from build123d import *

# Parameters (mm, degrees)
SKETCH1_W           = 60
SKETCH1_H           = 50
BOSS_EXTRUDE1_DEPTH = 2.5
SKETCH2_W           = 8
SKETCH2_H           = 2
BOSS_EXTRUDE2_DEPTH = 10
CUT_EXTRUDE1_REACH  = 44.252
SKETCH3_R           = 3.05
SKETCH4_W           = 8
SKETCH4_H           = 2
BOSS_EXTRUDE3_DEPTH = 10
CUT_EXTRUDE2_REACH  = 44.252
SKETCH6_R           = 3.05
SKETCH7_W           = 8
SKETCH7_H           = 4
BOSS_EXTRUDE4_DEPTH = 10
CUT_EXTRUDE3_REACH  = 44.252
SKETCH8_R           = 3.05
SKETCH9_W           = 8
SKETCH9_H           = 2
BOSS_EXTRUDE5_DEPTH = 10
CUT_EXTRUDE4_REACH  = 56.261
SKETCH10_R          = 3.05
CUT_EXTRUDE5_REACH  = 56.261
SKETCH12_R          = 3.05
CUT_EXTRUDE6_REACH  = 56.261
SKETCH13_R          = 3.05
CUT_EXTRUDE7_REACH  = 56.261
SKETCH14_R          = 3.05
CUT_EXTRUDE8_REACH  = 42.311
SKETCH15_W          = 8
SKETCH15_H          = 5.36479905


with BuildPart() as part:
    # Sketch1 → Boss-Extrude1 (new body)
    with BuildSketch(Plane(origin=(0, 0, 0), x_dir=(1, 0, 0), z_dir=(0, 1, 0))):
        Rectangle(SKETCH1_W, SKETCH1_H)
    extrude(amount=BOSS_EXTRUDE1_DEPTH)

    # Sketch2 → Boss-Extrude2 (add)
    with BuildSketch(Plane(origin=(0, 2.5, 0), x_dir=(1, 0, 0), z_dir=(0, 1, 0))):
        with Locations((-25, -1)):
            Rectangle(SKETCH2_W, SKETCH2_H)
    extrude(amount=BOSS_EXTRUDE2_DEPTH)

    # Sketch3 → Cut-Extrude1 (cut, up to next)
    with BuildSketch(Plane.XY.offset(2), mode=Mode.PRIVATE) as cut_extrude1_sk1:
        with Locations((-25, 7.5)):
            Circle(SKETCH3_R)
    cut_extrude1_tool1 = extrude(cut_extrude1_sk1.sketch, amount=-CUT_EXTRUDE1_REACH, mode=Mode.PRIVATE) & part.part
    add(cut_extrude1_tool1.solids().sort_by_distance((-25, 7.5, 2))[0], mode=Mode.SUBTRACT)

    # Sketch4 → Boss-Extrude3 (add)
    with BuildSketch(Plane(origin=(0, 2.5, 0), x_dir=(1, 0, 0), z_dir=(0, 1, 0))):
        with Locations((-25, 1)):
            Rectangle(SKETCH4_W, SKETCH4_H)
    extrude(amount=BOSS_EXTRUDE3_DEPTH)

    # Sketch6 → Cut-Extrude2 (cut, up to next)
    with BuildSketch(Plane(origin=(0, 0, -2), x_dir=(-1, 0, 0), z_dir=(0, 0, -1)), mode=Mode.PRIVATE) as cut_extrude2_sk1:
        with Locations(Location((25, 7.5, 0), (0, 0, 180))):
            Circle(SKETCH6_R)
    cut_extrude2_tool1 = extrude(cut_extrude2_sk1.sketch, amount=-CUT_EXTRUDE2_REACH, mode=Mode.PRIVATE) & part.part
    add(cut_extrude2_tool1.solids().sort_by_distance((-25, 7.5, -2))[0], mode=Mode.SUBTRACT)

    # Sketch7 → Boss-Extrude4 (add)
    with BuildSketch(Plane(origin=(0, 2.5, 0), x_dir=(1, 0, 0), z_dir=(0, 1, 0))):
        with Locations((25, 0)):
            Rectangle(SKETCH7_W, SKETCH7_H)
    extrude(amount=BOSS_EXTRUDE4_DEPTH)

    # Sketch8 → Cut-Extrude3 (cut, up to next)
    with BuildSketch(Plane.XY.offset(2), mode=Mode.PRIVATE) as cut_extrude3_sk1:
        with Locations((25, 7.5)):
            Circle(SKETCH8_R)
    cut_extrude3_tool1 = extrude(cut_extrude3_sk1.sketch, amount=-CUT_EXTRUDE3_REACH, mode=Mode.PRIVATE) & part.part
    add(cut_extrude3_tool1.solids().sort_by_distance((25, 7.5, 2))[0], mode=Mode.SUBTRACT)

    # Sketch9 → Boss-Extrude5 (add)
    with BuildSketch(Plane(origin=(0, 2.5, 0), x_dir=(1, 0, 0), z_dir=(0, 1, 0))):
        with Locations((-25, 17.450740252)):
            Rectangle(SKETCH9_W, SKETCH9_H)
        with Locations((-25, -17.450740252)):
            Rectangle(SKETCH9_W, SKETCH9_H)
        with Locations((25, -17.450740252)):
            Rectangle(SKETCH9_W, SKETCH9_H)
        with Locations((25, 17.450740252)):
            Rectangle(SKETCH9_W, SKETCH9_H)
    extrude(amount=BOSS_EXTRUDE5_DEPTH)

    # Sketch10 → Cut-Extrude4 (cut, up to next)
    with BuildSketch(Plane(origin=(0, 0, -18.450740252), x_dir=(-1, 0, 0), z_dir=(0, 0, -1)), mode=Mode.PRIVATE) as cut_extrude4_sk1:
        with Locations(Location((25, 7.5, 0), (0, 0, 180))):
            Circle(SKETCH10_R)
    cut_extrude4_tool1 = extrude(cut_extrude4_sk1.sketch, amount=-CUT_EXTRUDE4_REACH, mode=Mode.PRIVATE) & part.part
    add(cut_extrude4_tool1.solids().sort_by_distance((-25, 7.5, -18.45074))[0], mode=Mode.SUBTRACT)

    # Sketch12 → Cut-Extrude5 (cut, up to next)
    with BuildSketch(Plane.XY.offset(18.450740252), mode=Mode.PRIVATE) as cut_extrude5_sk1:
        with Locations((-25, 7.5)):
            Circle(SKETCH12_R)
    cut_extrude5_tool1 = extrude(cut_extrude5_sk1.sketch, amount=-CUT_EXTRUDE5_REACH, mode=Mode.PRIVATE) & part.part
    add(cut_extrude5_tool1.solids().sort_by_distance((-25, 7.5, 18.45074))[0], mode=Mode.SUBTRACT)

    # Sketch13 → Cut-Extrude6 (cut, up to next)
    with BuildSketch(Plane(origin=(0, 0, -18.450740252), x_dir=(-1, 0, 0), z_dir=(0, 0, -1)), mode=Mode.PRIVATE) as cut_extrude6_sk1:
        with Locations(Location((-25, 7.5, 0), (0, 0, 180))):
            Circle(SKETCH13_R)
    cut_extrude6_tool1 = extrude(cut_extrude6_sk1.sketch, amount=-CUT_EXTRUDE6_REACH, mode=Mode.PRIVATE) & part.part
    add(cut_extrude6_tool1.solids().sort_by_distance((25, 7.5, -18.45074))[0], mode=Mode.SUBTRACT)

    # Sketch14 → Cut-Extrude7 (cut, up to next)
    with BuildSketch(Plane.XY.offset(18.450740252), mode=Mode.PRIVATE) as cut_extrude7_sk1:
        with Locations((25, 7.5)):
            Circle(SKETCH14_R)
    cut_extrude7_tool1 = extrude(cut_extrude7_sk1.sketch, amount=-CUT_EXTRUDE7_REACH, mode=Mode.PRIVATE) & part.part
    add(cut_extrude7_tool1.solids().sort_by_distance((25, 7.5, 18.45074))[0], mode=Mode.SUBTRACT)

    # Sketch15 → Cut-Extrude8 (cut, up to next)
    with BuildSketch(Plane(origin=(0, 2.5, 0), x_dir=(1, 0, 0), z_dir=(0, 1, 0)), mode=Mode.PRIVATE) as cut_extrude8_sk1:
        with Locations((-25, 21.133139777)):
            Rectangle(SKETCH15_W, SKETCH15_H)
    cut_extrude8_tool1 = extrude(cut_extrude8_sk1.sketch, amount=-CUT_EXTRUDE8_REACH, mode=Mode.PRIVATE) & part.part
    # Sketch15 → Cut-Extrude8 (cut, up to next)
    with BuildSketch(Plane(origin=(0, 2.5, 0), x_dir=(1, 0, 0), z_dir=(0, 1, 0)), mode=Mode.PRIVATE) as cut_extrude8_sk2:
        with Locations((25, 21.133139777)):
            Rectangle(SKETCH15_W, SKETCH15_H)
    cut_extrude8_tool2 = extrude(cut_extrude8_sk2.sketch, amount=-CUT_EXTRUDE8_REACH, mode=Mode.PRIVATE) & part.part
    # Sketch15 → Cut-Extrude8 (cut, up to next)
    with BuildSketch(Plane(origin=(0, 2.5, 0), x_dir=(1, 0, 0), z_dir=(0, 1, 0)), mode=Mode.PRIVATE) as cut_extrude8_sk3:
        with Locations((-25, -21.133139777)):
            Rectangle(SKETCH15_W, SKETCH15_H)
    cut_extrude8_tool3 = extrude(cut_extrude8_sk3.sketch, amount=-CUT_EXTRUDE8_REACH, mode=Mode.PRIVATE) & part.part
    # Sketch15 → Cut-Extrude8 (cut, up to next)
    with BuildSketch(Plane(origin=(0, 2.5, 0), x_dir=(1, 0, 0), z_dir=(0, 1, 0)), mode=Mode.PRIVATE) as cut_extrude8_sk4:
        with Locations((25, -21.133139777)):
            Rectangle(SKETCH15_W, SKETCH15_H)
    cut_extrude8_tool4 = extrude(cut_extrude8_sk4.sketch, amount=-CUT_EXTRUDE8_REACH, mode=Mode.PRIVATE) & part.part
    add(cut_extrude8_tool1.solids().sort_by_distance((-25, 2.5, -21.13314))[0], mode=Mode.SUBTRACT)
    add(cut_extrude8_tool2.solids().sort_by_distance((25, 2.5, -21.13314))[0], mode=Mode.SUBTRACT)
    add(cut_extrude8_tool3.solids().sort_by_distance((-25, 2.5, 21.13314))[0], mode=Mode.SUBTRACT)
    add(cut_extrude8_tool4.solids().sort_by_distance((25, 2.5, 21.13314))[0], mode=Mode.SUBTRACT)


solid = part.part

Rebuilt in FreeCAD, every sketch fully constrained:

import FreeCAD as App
import Part
import Sketcher

V = App.Vector

doc = App.newDocument("Part")
body = doc.addObject("PartDesign::Body", "Body")

# Sketch on XZ plane
sketch1 = doc.addObject("Sketcher::SketchObject", "Sketch")
body.addObject(sketch1)
sketch1.AttachmentSupport = (doc.XZ_Plane, [""])
sketch1.MapMode = "FlatFace"
sketch1.addGeometry([
    Part.LineSegment(V(-30, -25, 0), V(-30, 25, 0)),
    Part.LineSegment(V(-30, 25, 0), V(30, 25, 0)),
    Part.LineSegment(V(30, 25, 0), V(30, -25, 0)),
    Part.LineSegment(V(30, -25, 0), V(-30, -25, 0)),
], False)
sketch1.addConstraint([
    Sketcher.Constraint("Coincident", 0, 2, 1, 1),
    Sketcher.Constraint("Coincident", 1, 2, 2, 1),
    Sketcher.Constraint("Coincident", 2, 2, 3, 1),
    Sketcher.Constraint("Coincident", 3, 2, 0, 1),
    Sketcher.Constraint("Vertical", 0),
    Sketcher.Constraint("Horizontal", 1),
    Sketcher.Constraint("Vertical", 2),
    Sketcher.Constraint("Horizontal", 3),
    Sketcher.Constraint("Symmetric", 0, 2, 2, 2, -1, 1),
    Sketcher.Constraint("DistanceX", 1, 1, 1, 2, 60.0),
    Sketcher.Constraint("DistanceY", 0, 1, 0, 2, 50.0),
])
pad1 = doc.addObject("PartDesign::Pad", "Pad")
body.addObject(pad1)
pad1.Profile = sketch1
pad1.Length = 2.5
pad1.Reversed = True

# Sketch on XZ plane
sketch2 = doc.addObject("Sketcher::SketchObject", "Sketch001")
body.addObject(sketch2)
sketch2.AttachmentSupport = (doc.XZ_Plane, [""])
sketch2.MapMode = "FlatFace"
sketch2.AttachmentOffset = App.Placement(V(0, 0, -2.5), App.Rotation())
sketch2.addGeometry([
    Part.LineSegment(V(-29, 0, 0), V(-29, 2, 0)),
    Part.LineSegment(V(-29, 2, 0), V(-21, 2, 0)),
    Part.LineSegment(V(-21, 2, 0), V(-21, 0, 0)),
    Part.LineSegment(V(-21, 0, 0), V(-29, 0, 0)),
], False)
sketch2.addConstraint([
    Sketcher.Constraint("Coincident", 0, 2, 1, 1),
    Sketcher.Constraint("Coincident", 1, 2, 2, 1),
    Sketcher.Constraint("Coincident", 2, 2, 3, 1),
    Sketcher.Constraint("Coincident", 3, 2, 0, 1),
    Sketcher.Constraint("Vertical", 0),
    Sketcher.Constraint("Horizontal", 1),
    Sketcher.Constraint("Vertical", 2),
    Sketcher.Constraint("Horizontal", 3),
    Sketcher.Constraint("PointOnObject", 2, 2, -1),
    Sketcher.Constraint("DistanceX", 1, 1, 1, 2, 8.0),
    Sketcher.Constraint("DistanceY", 0, 1, 0, 2, 2.0),
    Sketcher.Constraint("DistanceX", 0, 2, -1, 1, 29.0),
])
pad2 = doc.addObject("PartDesign::Pad", "Pad001")
body.addObject(pad2)
pad2.Profile = sketch2
pad2.Length = 10
pad2.Reversed = True

# Sketch on XY plane
sketch3 = doc.addObject("Sketcher::SketchObject", "Sketch002")
body.addObject(sketch3)
sketch3.AttachmentSupport = (doc.XY_Plane, [""])
sketch3.MapMode = "FlatFace"
sketch3.AttachmentOffset = App.Placement(V(0, 0, 2), App.Rotation())
sketch3.addGeometry(Part.Circle(V(-25, 7.5, 0), V(0, 0, 1), 3), False)
sketch3.addConstraint([
    Sketcher.Constraint("Diameter", 0, 6.1),
    Sketcher.Constraint("DistanceX", 0, 3, -1, 1, 25.0),
    Sketcher.Constraint("DistanceY", -1, 1, 0, 3, 7.5),
])
pocket1 = doc.addObject("PartDesign::Pocket", "Pocket")
body.addObject(pocket1)
pocket1.Profile = sketch3
pocket1.Type = "UpToFirst"

# Sketch on XZ plane
sketch4 = doc.addObject("Sketcher::SketchObject", "Sketch003")
body.addObject(sketch4)
sketch4.AttachmentSupport = (doc.XZ_Plane, [""])
sketch4.MapMode = "FlatFace"
sketch4.AttachmentOffset = App.Placement(V(0, 0, -2.5), App.Rotation())
sketch4.addGeometry([
    Part.LineSegment(V(-29, -2, 0), V(-29, 0, 0)),
    Part.LineSegment(V(-29, 0, 0), V(-21, 0, 0)),
    Part.LineSegment(V(-21, 0, 0), V(-21, -2, 0)),
    Part.LineSegment(V(-21, -2, 0), V(-29, -2, 0)),
], False)
sketch4.addConstraint([
    Sketcher.Constraint("Coincident", 0, 2, 1, 1),
    Sketcher.Constraint("Coincident", 1, 2, 2, 1),
    Sketcher.Constraint("Coincident", 2, 2, 3, 1),
    Sketcher.Constraint("Coincident", 3, 2, 0, 1),
    Sketcher.Constraint("Vertical", 0),
    Sketcher.Constraint("Horizontal", 1),
    Sketcher.Constraint("Vertical", 2),
    Sketcher.Constraint("Horizontal", 3),
    Sketcher.Constraint("PointOnObject", 0, 2, -1),
    Sketcher.Constraint("DistanceX", 1, 1, 1, 2, 8.0),
    Sketcher.Constraint("DistanceY", 0, 1, 0, 2, 2.0),
    Sketcher.Constraint("DistanceX", 0, 2, -1, 1, 29.0),
])
pad3 = doc.addObject("PartDesign::Pad", "Pad002")
body.addObject(pad3)
pad3.Profile = sketch4
pad3.Length = 10
pad3.Reversed = True

# Sketch on XY plane
sketch5 = doc.addObject("Sketcher::SketchObject", "Sketch004")
body.addObject(sketch5)
sketch5.AttachmentSupport = (doc.XY_Plane, [""])
sketch5.MapMode = "FlatFace"
sketch5.AttachmentOffset = App.Placement(V(0, 0, -2), App.Rotation())
sketch5.addGeometry(Part.Circle(V(-25, 7.5, 0), V(0, 0, 1), 3), False)
sketch5.addConstraint([
    Sketcher.Constraint("Diameter", 0, 6.1),
    Sketcher.Constraint("DistanceX", 0, 3, -1, 1, 25.0),
    Sketcher.Constraint("DistanceY", -1, 1, 0, 3, 7.5),
])
pocket2 = doc.addObject("PartDesign::Pocket", "Pocket001")
body.addObject(pocket2)
pocket2.Profile = sketch5
pocket2.Type = "UpToFirst"
pocket2.Reversed = True

# Sketch on XZ plane
sketch6 = doc.addObject("Sketcher::SketchObject", "Sketch005")
body.addObject(sketch6)
sketch6.AttachmentSupport = (doc.XZ_Plane, [""])
sketch6.MapMode = "FlatFace"
sketch6.AttachmentOffset = App.Placement(V(0, 0, -2.5), App.Rotation())
sketch6.addGeometry([
    Part.LineSegment(V(21, -2, 0), V(21, 2, 0)),
    Part.LineSegment(V(21, 2, 0), V(29, 2, 0)),
    Part.LineSegment(V(29, 2, 0), V(29, -2, 0)),
    Part.LineSegment(V(29, -2, 0), V(21, -2, 0)),
], False)
sketch6.addConstraint([
    Sketcher.Constraint("Coincident", 0, 2, 1, 1),
    Sketcher.Constraint("Coincident", 1, 2, 2, 1),
    Sketcher.Constraint("Coincident", 2, 2, 3, 1),
    Sketcher.Constraint("Coincident", 3, 2, 0, 1),
    Sketcher.Constraint("Vertical", 0),
    Sketcher.Constraint("Horizontal", 1),
    Sketcher.Constraint("Vertical", 2),
    Sketcher.Constraint("Horizontal", 3),
    Sketcher.Constraint("DistanceX", 1, 1, 1, 2, 8.0),
    Sketcher.Constraint("DistanceY", 0, 1, 0, 2, 4.0),
    Sketcher.Constraint("DistanceX", -1, 1, 0, 2, 21.0),
    Sketcher.Constraint("DistanceY", -1, 1, 0, 2, 2.0),
])
pad4 = doc.addObject("PartDesign::Pad", "Pad003")
body.addObject(pad4)
pad4.Profile = sketch6
pad4.Length = 10
pad4.Reversed = True

# Sketch on XY plane
sketch7 = doc.addObject("Sketcher::SketchObject", "Sketch006")
body.addObject(sketch7)
sketch7.AttachmentSupport = (doc.XY_Plane, [""])
sketch7.MapMode = "FlatFace"
sketch7.AttachmentOffset = App.Placement(V(0, 0, 2), App.Rotation())
sketch7.addGeometry(Part.Circle(V(25, 7.5, 0), V(0, 0, 1), 3), False)
sketch7.addConstraint([
    Sketcher.Constraint("Diameter", 0, 6.1),
    Sketcher.Constraint("DistanceX", -1, 1, 0, 3, 25.0),
    Sketcher.Constraint("DistanceY", -1, 1, 0, 3, 7.5),
])
pocket3 = doc.addObject("PartDesign::Pocket", "Pocket002")
body.addObject(pocket3)
pocket3.Profile = sketch7
pocket3.Type = "UpToFirst"

# Sketch on XZ plane
sketch8 = doc.addObject("Sketcher::SketchObject", "Sketch007")
body.addObject(sketch8)
sketch8.AttachmentSupport = (doc.XZ_Plane, [""])
sketch8.MapMode = "FlatFace"
sketch8.AttachmentOffset = App.Placement(V(0, 0, -2.5), App.Rotation())
sketch8.addGeometry([
    Part.LineSegment(V(-29, -18.5, 0), V(-29, -16.5, 0)),  # 0
    Part.LineSegment(V(-29, -16.5, 0), V(-21, -16.5, 0)),  # 1
    Part.LineSegment(V(-21, -16.5, 0), V(-21, -18.5, 0)),  # 2
    Part.LineSegment(V(-21, -18.5, 0), V(-29, -18.5, 0)),  # 3
    Part.LineSegment(V(-29, 16.5, 0), V(-29, 18.5, 0)),  # 4
    Part.LineSegment(V(-29, 18.5, 0), V(-21, 18.5, 0)),  # 5
    Part.LineSegment(V(-21, 18.5, 0), V(-21, 16.5, 0)),  # 6
    Part.LineSegment(V(-21, 16.5, 0), V(-29, 16.5, 0)),  # 7
    Part.LineSegment(V(21, 16.5, 0), V(21, 18.5, 0)),  # 8
    Part.LineSegment(V(21, 18.5, 0), V(29, 18.5, 0)),  # 9
    Part.LineSegment(V(29, 18.5, 0), V(29, 16.5, 0)),  # 10
    Part.LineSegment(V(29, 16.5, 0), V(21, 16.5, 0)),  # 11
    Part.LineSegment(V(21, -18.5, 0), V(21, -16.5, 0)),  # 12
    Part.LineSegment(V(21, -16.5, 0), V(29, -16.5, 0)),  # 13
    Part.LineSegment(V(29, -16.5, 0), V(29, -18.5, 0)),  # 14
    Part.LineSegment(V(29, -18.5, 0), V(21, -18.5, 0)),  # 15
], False)
sketch8.addConstraint([
    Sketcher.Constraint("Coincident", 0, 2, 1, 1),
    Sketcher.Constraint("Coincident", 1, 2, 2, 1),
    Sketcher.Constraint("Coincident", 2, 2, 3, 1),
    Sketcher.Constraint("Coincident", 3, 2, 0, 1),
    Sketcher.Constraint("Coincident", 4, 2, 5, 1),
    Sketcher.Constraint("Coincident", 5, 2, 6, 1),
    Sketcher.Constraint("Coincident", 6, 2, 7, 1),
    Sketcher.Constraint("Coincident", 7, 2, 4, 1),
    Sketcher.Constraint("Coincident", 8, 2, 9, 1),
    Sketcher.Constraint("Coincident", 9, 2, 10, 1),
    Sketcher.Constraint("Coincident", 10, 2, 11, 1),
    Sketcher.Constraint("Coincident", 11, 2, 8, 1),
    Sketcher.Constraint("Coincident", 12, 2, 13, 1),
    Sketcher.Constraint("Coincident", 13, 2, 14, 1),
    Sketcher.Constraint("Coincident", 14, 2, 15, 1),
    Sketcher.Constraint("Coincident", 15, 2, 12, 1),
    Sketcher.Constraint("Vertical", 0),
    Sketcher.Constraint("Horizontal", 1),
    Sketcher.Constraint("Vertical", 2),
    Sketcher.Constraint("Horizontal", 3),
    Sketcher.Constraint("Vertical", 4),
    Sketcher.Constraint("Horizontal", 5),
    Sketcher.Constraint("Vertical", 6),
    Sketcher.Constraint("Horizontal", 7),
    Sketcher.Constraint("Vertical", 8),
    Sketcher.Constraint("Horizontal", 9),
    Sketcher.Constraint("Vertical", 10),
    Sketcher.Constraint("Horizontal", 11),
    Sketcher.Constraint("Vertical", 12),
    Sketcher.Constraint("Horizontal", 13),
    Sketcher.Constraint("Vertical", 14),
    Sketcher.Constraint("Horizontal", 15),
    Sketcher.Constraint("Symmetric", 2, 2, 8, 2, -1, 1),
    Sketcher.Constraint("Symmetric", 0, 2, 10, 2, -1, 1),
    Sketcher.Constraint("Symmetric", 6, 2, 12, 2, -1, 1),
    Sketcher.Constraint("Symmetric", 4, 2, 14, 2, -1, 1),
    Sketcher.Constraint("Symmetric", 5, 2, 8, 2, -2),
    Sketcher.Constraint("Symmetric", 7, 2, 10, 2, -2),
    Sketcher.Constraint("DistanceX", 1, 1, 1, 2, 8.0),
    Sketcher.Constraint("DistanceY", 0, 1, 0, 2, 2.0),
    Sketcher.Constraint("DistanceX", 0, 2, -1, 1, 29.0),
    Sketcher.Constraint("DistanceY", 0, 2, -1, 1, 16.45074),
])
pad5 = doc.addObject("PartDesign::Pad", "Pad004")
body.addObject(pad5)
pad5.Profile = sketch8
pad5.Length = 10
pad5.Reversed = True

# Sketch on XY plane
sketch9 = doc.addObject("Sketcher::SketchObject", "Sketch008")
body.addObject(sketch9)
sketch9.AttachmentSupport = (doc.XY_Plane, [""])
sketch9.MapMode = "FlatFace"
sketch9.AttachmentOffset = App.Placement(V(0, 0, -18.45074), App.Rotation())
sketch9.addGeometry(Part.Circle(V(-25, 7.5, 0), V(0, 0, 1), 3), False)
sketch9.addConstraint([
    Sketcher.Constraint("Diameter", 0, 6.1),
    Sketcher.Constraint("DistanceX", 0, 3, -1, 1, 25.0),
    Sketcher.Constraint("DistanceY", -1, 1, 0, 3, 7.5),
])
pocket4 = doc.addObject("PartDesign::Pocket", "Pocket003")
body.addObject(pocket4)
pocket4.Profile = sketch9
pocket4.Type = "UpToFirst"
pocket4.Reversed = True

# Sketch on XY plane
sketch10 = doc.addObject("Sketcher::SketchObject", "Sketch009")
body.addObject(sketch10)
sketch10.AttachmentSupport = (doc.XY_Plane, [""])
sketch10.MapMode = "FlatFace"
sketch10.AttachmentOffset = App.Placement(V(0, 0, 18.45074), App.Rotation())
sketch10.addGeometry(Part.Circle(V(-25, 7.5, 0), V(0, 0, 1), 3), False)
sketch10.addConstraint([
    Sketcher.Constraint("Diameter", 0, 6.1),
    Sketcher.Constraint("DistanceX", 0, 3, -1, 1, 25.0),
    Sketcher.Constraint("DistanceY", -1, 1, 0, 3, 7.5),
])
pocket5 = doc.addObject("PartDesign::Pocket", "Pocket004")
body.addObject(pocket5)
pocket5.Profile = sketch10
pocket5.Type = "UpToFirst"

# Sketch on XY plane
sketch11 = doc.addObject("Sketcher::SketchObject", "Sketch010")
body.addObject(sketch11)
sketch11.AttachmentSupport = (doc.XY_Plane, [""])
sketch11.MapMode = "FlatFace"
sketch11.AttachmentOffset = App.Placement(V(0, 0, -18.45074), App.Rotation())
sketch11.addGeometry(Part.Circle(V(25, 7.5, 0), V(0, 0, 1), 3), False)
sketch11.addConstraint([
    Sketcher.Constraint("Diameter", 0, 6.1),
    Sketcher.Constraint("DistanceX", -1, 1, 0, 3, 25.0),
    Sketcher.Constraint("DistanceY", -1, 1, 0, 3, 7.5),
])
pocket6 = doc.addObject("PartDesign::Pocket", "Pocket005")
body.addObject(pocket6)
pocket6.Profile = sketch11
pocket6.Type = "UpToFirst"
pocket6.Reversed = True

# Sketch on XY plane
sketch12 = doc.addObject("Sketcher::SketchObject", "Sketch011")
body.addObject(sketch12)
sketch12.AttachmentSupport = (doc.XY_Plane, [""])
sketch12.MapMode = "FlatFace"
sketch12.AttachmentOffset = App.Placement(V(0, 0, 18.45074), App.Rotation())
sketch12.addGeometry(Part.Circle(V(25, 7.5, 0), V(0, 0, 1), 3), False)
sketch12.addConstraint([
    Sketcher.Constraint("Diameter", 0, 6.1),
    Sketcher.Constraint("DistanceX", -1, 1, 0, 3, 25.0),
    Sketcher.Constraint("DistanceY", -1, 1, 0, 3, 7.5),
])
pocket7 = doc.addObject("PartDesign::Pocket", "Pocket006")
body.addObject(pocket7)
pocket7.Profile = sketch12
pocket7.Type = "UpToFirst"

# Sketch on XZ plane
sketch13 = doc.addObject("Sketcher::SketchObject", "Sketch012")
body.addObject(sketch13)
sketch13.AttachmentSupport = (doc.XZ_Plane, [""])
sketch13.MapMode = "FlatFace"
sketch13.AttachmentOffset = App.Placement(V(0, 0, -2.5), App.Rotation())
sketch13.addGeometry([
    Part.LineSegment(V(-29, -24, 0), V(-29, -18, 0)),
    Part.LineSegment(V(-29, -18, 0), V(-21, -18, 0)),
    Part.LineSegment(V(-21, -18, 0), V(-21, -24, 0)),
    Part.LineSegment(V(-21, -24, 0), V(-29, -24, 0)),
], False)
sketch13.addConstraint([
    Sketcher.Constraint("Coincident", 0, 2, 1, 1),
    Sketcher.Constraint("Coincident", 1, 2, 2, 1),
    Sketcher.Constraint("Coincident", 2, 2, 3, 1),
    Sketcher.Constraint("Coincident", 3, 2, 0, 1),
    Sketcher.Constraint("Vertical", 0),
    Sketcher.Constraint("Horizontal", 1),
    Sketcher.Constraint("Vertical", 2),
    Sketcher.Constraint("Horizontal", 3),
    Sketcher.Constraint("DistanceX", 1, 1, 1, 2, 8.0),
    Sketcher.Constraint("DistanceX", 0, 2, -1, 1, 29.0),
    Sketcher.Constraint("DistanceY", 0, 1, 0, 2, 5.364799),
    Sketcher.Constraint("DistanceY", 0, 2, -1, 1, 18.45074),
])
pocket8 = doc.addObject("PartDesign::Pocket", "Pocket007")
body.addObject(pocket8)
pocket8.Profile = sketch13
pocket8.Type = "UpToFirst"
pocket8.Reversed = True

# Sketch on XZ plane
sketch14 = doc.addObject("Sketcher::SketchObject", "Sketch013")
body.addObject(sketch14)
sketch14.AttachmentSupport = (doc.XZ_Plane, [""])
sketch14.MapMode = "FlatFace"
sketch14.AttachmentOffset = App.Placement(V(0, 0, -2.5), App.Rotation())
sketch14.addGeometry([
    Part.LineSegment(V(21, -24, 0), V(21, -18, 0)),
    Part.LineSegment(V(21, -18, 0), V(29, -18, 0)),
    Part.LineSegment(V(29, -18, 0), V(29, -24, 0)),
    Part.LineSegment(V(29, -24, 0), V(21, -24, 0)),
], False)
sketch14.addConstraint([
    Sketcher.Constraint("Coincident", 0, 2, 1, 1),
    Sketcher.Constraint("Coincident", 1, 2, 2, 1),
    Sketcher.Constraint("Coincident", 2, 2, 3, 1),
    Sketcher.Constraint("Coincident", 3, 2, 0, 1),
    Sketcher.Constraint("Vertical", 0),
    Sketcher.Constraint("Horizontal", 1),
    Sketcher.Constraint("Vertical", 2),
    Sketcher.Constraint("Horizontal", 3),
    Sketcher.Constraint("DistanceX", 1, 1, 1, 2, 8.0),
    Sketcher.Constraint("DistanceX", -1, 1, 0, 2, 21.0),
    Sketcher.Constraint("DistanceY", 0, 1, 0, 2, 5.364799),
    Sketcher.Constraint("DistanceY", 0, 2, -1, 1, 18.45074),
])
pocket9 = doc.addObject("PartDesign::Pocket", "Pocket008")
body.addObject(pocket9)
pocket9.Profile = sketch14
pocket9.Type = "UpToFirst"
pocket9.Reversed = True

# Sketch on XZ plane
sketch15 = doc.addObject("Sketcher::SketchObject", "Sketch014")
body.addObject(sketch15)
sketch15.AttachmentSupport = (doc.XZ_Plane, [""])
sketch15.MapMode = "FlatFace"
sketch15.AttachmentOffset = App.Placement(V(0, 0, -2.5), App.Rotation())
sketch15.addGeometry([
    Part.LineSegment(V(-29, 18, 0), V(-29, 24, 0)),
    Part.LineSegment(V(-29, 24, 0), V(-21, 24, 0)),
    Part.LineSegment(V(-21, 24, 0), V(-21, 18, 0)),
    Part.LineSegment(V(-21, 18, 0), V(-29, 18, 0)),
], False)
sketch15.addConstraint([
    Sketcher.Constraint("Coincident", 0, 2, 1, 1),
    Sketcher.Constraint("Coincident", 1, 2, 2, 1),
    Sketcher.Constraint("Coincident", 2, 2, 3, 1),
    Sketcher.Constraint("Coincident", 3, 2, 0, 1),
    Sketcher.Constraint("Vertical", 0),
    Sketcher.Constraint("Horizontal", 1),
    Sketcher.Constraint("Vertical", 2),
    Sketcher.Constraint("Horizontal", 3),
    Sketcher.Constraint("DistanceX", 1, 1, 1, 2, 8.0),
    Sketcher.Constraint("DistanceX", 0, 2, -1, 1, 29.0),
    Sketcher.Constraint("DistanceY", 0, 1, 0, 2, 5.364799),
    Sketcher.Constraint("DistanceY", -1, 1, 0, 2, 23.815539),
])
pocket10 = doc.addObject("PartDesign::Pocket", "Pocket009")
body.addObject(pocket10)
pocket10.Profile = sketch15
pocket10.Type = "UpToFirst"
pocket10.Reversed = True

# Sketch on XZ plane
sketch16 = doc.addObject("Sketcher::SketchObject", "Sketch015")
body.addObject(sketch16)
sketch16.AttachmentSupport = (doc.XZ_Plane, [""])
sketch16.MapMode = "FlatFace"
sketch16.AttachmentOffset = App.Placement(V(0, 0, -2.5), App.Rotation())
sketch16.addGeometry([
    Part.LineSegment(V(21, 18, 0), V(21, 24, 0)),
    Part.LineSegment(V(21, 24, 0), V(29, 24, 0)),
    Part.LineSegment(V(29, 24, 0), V(29, 18, 0)),
    Part.LineSegment(V(29, 18, 0), V(21, 18, 0)),
], False)
sketch16.addConstraint([
    Sketcher.Constraint("Coincident", 0, 2, 1, 1),
    Sketcher.Constraint("Coincident", 1, 2, 2, 1),
    Sketcher.Constraint("Coincident", 2, 2, 3, 1),
    Sketcher.Constraint("Coincident", 3, 2, 0, 1),
    Sketcher.Constraint("Vertical", 0),
    Sketcher.Constraint("Horizontal", 1),
    Sketcher.Constraint("Vertical", 2),
    Sketcher.Constraint("Horizontal", 3),
    Sketcher.Constraint("DistanceX", 1, 1, 1, 2, 8.0),
    Sketcher.Constraint("DistanceX", -1, 1, 0, 2, 21.0),
    Sketcher.Constraint("DistanceY", 0, 1, 0, 2, 5.364799),
    Sketcher.Constraint("DistanceY", -1, 1, 0, 2, 23.815539),
])
pocket11 = doc.addObject("PartDesign::Pocket", "Pocket010")
body.addObject(pocket11)
pocket11.Profile = sketch16
pocket11.Type = "UpToFirst"
pocket11.Reversed = True

doc.recompute()
